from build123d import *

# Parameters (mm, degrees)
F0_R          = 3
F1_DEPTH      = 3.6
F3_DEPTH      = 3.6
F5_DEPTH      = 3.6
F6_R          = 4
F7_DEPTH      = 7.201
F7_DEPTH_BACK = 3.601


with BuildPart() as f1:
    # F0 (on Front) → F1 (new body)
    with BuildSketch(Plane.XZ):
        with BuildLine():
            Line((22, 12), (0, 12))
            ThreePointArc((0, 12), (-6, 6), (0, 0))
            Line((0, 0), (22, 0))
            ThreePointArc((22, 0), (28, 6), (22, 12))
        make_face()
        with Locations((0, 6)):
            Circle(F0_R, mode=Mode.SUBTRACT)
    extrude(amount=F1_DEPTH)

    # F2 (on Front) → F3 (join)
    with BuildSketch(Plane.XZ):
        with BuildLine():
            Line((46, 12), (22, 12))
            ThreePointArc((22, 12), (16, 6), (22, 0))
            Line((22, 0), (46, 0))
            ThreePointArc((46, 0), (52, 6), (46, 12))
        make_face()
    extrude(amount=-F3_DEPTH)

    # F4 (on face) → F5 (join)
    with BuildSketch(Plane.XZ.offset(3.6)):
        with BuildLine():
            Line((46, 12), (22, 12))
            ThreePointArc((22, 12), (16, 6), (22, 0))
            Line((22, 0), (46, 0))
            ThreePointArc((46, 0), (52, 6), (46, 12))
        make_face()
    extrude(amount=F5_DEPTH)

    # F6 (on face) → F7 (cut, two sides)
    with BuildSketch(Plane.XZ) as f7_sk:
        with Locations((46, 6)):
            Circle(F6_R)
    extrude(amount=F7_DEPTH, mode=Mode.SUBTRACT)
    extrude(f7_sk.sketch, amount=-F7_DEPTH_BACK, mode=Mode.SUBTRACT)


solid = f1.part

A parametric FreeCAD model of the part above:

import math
import FreeCAD as App
import Part
import Sketcher

V = App.Vector
Q = App.Units.Quantity

doc = App.newDocument("Part")
params = doc.addObject("Spreadsheet::Sheet", "Params")
for row, (alias, value) in enumerate([
    ("sketch1_diameter", "6 mm"),
    ("sketch1_radius", "6 mm"),
    ("sketch1_width", "22 mm"),
    ("pad1_length", "3.6 mm"),
    ("sketch2_radius", "6 mm"),
    ("sketch2_width", "24 mm"),
    ("pad2_length", "3.6 mm"),
    ("sketch3_radius", "6 mm"),
    ("sketch3_width", "24 mm"),
    ("pad3_length", "3.6 mm"),
    ("sketch4_diameter", "8 mm"),
], start=1):
    params.set(f"A{row}", alias)
    params.set(f"B{row}", "=" + value)
    params.setAlias(f"B{row}", alias)

body = doc.addObject("PartDesign::Body", "Body")

sketch1 = body.newObject("Sketcher::SketchObject", "Sketch")
sketch1.AttachmentSupport = (doc.getObject("XZ_Plane"), [""])
sketch1.MapMode = "FlatFace"
sketch1.addGeometry([
    Part.LineSegment(V(22, 12, 0), V(0, 12, 0)),
    Part.ArcOfCircle(Part.Circle(V(0, 6, 0), V(0, 0, 1), 6), math.radians(90), math.radians(270)),
    Part.LineSegment(V(0, 0, 0), V(22, 0, 0)),
    Part.ArcOfCircle(Part.Circle(V(22, 6, 0), V(0, 0, 1), 6), math.radians(-90), math.radians(90)),
    Part.Circle(V(0, 6, 0), V(0, 0, 1), 3),
], False)
sketch1.addConstraint([
    Sketcher.Constraint("Tangent", 0, 2, 1, 1),
    Sketcher.Constraint("Tangent", 1, 2, 2, 1),
    Sketcher.Constraint("Tangent", 2, 2, 3, 1),
    Sketcher.Constraint("Tangent", 3, 2, 0, 1),
    Sketcher.Constraint("Horizontal", 0),
    Sketcher.Constraint("Horizontal", 2),
    Sketcher.Constraint("Coincident", 1, 2, -1, 1),
    Sketcher.Constraint("Coincident", 4, 3, 1, 3),
    Sketcher.Constraint("Diameter", 4, Q("6 mm")),
    Sketcher.Constraint("Radius", 1, Q("6 mm")),
    Sketcher.Constraint("DistanceX", 0, 2, 0, 1, Q("22 mm")),
])
sketch1.setExpression("Constraints[8]", "Params.sketch1_diameter")
sketch1.setExpression("Constraints[9]", "Params.sketch1_radius")
sketch1.setExpression("Constraints[10]", "Params.sketch1_width")
pad1 = body.newObject("PartDesign::Pad", "Pad")
pad1.Profile = sketch1
pad1.setExpression("Length", "Params.pad1_length")

sketch2 = body.newObject("Sketcher::SketchObject", "Sketch001")
sketch2.AttachmentSupport = (doc.getObject("XZ_Plane"), [""])
sketch2.MapMode = "FlatFace"
sketch2.addGeometry([
    Part.LineSegment(V(46, 12, 0), V(22, 12, 0)),
    Part.ArcOfCircle(Part.Circle(V(22, 6, 0), V(0, 0, 1), 6), math.radians(90), math.radians(270)),
    Part.LineSegment(V(22, 0, 0), V(46, 0, 0)),
    Part.ArcOfCircle(Part.Circle(V(46, 6, 0), V(0, 0, 1), 6), math.radians(-90), math.radians(90)),
], False)
sketch2.addConstraint([
    Sketcher.Constraint("Tangent", 0, 2, 1, 1),
    Sketcher.Constraint("Tangent", 1, 2, 2, 1),
    Sketcher.Constraint("Tangent", 2, 2, 3, 1),
    Sketcher.Constraint("Tangent", 3, 2, 0, 1),
    Sketcher.Constraint("Horizontal", 0),
    Sketcher.Constraint("Horizontal", 2),
    Sketcher.Constraint("PointOnObject", 1, 2, -1),
    Sketcher.Constraint("Radius", 1, Q("6 mm")),
    Sketcher.Constraint("DistanceX", 0, 2, 0, 1, Q("24 mm")),
    Sketcher.Constraint("DistanceX", -1, 1, 1, 3, Q("22 mm")),
])
sketch2.setExpression("Constraints[7]", "Params.sketch2_radius")
sketch2.setExpression("Constraints[8]", "Params.sketch2_width")
pad2 = body.newObject("PartDesign::Pad", "Pad001")
pad2.Profile = sketch2
pad2.setExpression("Length", "Params.pad2_length")
pad2.Reversed = True

sketch3 = body.newObject("Sketcher::SketchObject", "Sketch002")
sketch3.AttachmentSupport = (doc.getObject("XZ_Plane"), [""])
sketch3.MapMode = "FlatFace"
sketch3.AttachmentOffset = App.Placement(V(0, 0, 3.6), App.Rotation())
sketch3.addGeometry([
    Part.LineSegment(V(46, 12, 0), V(22, 12, 0)),
    Part.ArcOfCircle(Part.Circle(V(22, 6, 0), V(0, 0, 1), 6), math.radians(90), math.radians(270)),
    Part.LineSegment(V(22, 0, 0), V(46, 0, 0)),
    Part.ArcOfCircle(Part.Circle(V(46, 6, 0), V(0, 0, 1), 6), math.radians(-90), math.radians(90)),
], False)
sketch3.addConstraint([
    Sketcher.Constraint("Tangent", 0, 2, 1, 1),
    Sketcher.Constraint("Tangent", 1, 2, 2, 1),
    Sketcher.Constraint("Tangent", 2, 2, 3, 1),
    Sketcher.Constraint("Tangent", 3, 2, 0, 1),
    Sketcher.Constraint("Horizontal", 0),
    Sketcher.Constraint("Horizontal", 2),
    Sketcher.Constraint("PointOnObject", 1, 2, -1),
    Sketcher.Constraint("Radius", 1, Q("6 mm")),
    Sketcher.Constraint("DistanceX", 0, 2, 0, 1, Q("24 mm")),
    Sketcher.Constraint("DistanceX", -1, 1, 1, 3, Q("22 mm")),
])
sketch3.setExpression("Constraints[7]", "Params.sketch3_radius")
sketch3.setExpression("Constraints[8]", "Params.sketch3_width")
pad3 = body.newObject("PartDesign::Pad", "Pad002")
pad3.Profile = sketch3
pad3.setExpression("Length", "Params.pad3_length")

sketch4 = body.newObject("Sketcher::SketchObject", "Sketch003")
sketch4.AttachmentSupport = (doc.getObject("XZ_Plane"), [""])
sketch4.MapMode = "FlatFace"
sketch4.addGeometry(Part.Circle(V(46, 6, 0), V(0, 0, 1), 4), False)
sketch4.addConstraint([
    Sketcher.Constraint("Diameter", 0, Q("8 mm")),
    Sketcher.Constraint("DistanceX", -1, 1, 0, 3, Q("46 mm")),
    Sketcher.Constraint("DistanceY", -1, 1, 0, 3, Q("6 mm")),
])
sketch4.setExpression("Constraints[0]", "Params.sketch4_diameter")
pocket1 = body.newObject("PartDesign::Pocket", "Pocket")
pocket1.Profile = sketch4
pocket1.Type = "ThroughAll"
pocket1.Midplane = True

doc.recompute()
